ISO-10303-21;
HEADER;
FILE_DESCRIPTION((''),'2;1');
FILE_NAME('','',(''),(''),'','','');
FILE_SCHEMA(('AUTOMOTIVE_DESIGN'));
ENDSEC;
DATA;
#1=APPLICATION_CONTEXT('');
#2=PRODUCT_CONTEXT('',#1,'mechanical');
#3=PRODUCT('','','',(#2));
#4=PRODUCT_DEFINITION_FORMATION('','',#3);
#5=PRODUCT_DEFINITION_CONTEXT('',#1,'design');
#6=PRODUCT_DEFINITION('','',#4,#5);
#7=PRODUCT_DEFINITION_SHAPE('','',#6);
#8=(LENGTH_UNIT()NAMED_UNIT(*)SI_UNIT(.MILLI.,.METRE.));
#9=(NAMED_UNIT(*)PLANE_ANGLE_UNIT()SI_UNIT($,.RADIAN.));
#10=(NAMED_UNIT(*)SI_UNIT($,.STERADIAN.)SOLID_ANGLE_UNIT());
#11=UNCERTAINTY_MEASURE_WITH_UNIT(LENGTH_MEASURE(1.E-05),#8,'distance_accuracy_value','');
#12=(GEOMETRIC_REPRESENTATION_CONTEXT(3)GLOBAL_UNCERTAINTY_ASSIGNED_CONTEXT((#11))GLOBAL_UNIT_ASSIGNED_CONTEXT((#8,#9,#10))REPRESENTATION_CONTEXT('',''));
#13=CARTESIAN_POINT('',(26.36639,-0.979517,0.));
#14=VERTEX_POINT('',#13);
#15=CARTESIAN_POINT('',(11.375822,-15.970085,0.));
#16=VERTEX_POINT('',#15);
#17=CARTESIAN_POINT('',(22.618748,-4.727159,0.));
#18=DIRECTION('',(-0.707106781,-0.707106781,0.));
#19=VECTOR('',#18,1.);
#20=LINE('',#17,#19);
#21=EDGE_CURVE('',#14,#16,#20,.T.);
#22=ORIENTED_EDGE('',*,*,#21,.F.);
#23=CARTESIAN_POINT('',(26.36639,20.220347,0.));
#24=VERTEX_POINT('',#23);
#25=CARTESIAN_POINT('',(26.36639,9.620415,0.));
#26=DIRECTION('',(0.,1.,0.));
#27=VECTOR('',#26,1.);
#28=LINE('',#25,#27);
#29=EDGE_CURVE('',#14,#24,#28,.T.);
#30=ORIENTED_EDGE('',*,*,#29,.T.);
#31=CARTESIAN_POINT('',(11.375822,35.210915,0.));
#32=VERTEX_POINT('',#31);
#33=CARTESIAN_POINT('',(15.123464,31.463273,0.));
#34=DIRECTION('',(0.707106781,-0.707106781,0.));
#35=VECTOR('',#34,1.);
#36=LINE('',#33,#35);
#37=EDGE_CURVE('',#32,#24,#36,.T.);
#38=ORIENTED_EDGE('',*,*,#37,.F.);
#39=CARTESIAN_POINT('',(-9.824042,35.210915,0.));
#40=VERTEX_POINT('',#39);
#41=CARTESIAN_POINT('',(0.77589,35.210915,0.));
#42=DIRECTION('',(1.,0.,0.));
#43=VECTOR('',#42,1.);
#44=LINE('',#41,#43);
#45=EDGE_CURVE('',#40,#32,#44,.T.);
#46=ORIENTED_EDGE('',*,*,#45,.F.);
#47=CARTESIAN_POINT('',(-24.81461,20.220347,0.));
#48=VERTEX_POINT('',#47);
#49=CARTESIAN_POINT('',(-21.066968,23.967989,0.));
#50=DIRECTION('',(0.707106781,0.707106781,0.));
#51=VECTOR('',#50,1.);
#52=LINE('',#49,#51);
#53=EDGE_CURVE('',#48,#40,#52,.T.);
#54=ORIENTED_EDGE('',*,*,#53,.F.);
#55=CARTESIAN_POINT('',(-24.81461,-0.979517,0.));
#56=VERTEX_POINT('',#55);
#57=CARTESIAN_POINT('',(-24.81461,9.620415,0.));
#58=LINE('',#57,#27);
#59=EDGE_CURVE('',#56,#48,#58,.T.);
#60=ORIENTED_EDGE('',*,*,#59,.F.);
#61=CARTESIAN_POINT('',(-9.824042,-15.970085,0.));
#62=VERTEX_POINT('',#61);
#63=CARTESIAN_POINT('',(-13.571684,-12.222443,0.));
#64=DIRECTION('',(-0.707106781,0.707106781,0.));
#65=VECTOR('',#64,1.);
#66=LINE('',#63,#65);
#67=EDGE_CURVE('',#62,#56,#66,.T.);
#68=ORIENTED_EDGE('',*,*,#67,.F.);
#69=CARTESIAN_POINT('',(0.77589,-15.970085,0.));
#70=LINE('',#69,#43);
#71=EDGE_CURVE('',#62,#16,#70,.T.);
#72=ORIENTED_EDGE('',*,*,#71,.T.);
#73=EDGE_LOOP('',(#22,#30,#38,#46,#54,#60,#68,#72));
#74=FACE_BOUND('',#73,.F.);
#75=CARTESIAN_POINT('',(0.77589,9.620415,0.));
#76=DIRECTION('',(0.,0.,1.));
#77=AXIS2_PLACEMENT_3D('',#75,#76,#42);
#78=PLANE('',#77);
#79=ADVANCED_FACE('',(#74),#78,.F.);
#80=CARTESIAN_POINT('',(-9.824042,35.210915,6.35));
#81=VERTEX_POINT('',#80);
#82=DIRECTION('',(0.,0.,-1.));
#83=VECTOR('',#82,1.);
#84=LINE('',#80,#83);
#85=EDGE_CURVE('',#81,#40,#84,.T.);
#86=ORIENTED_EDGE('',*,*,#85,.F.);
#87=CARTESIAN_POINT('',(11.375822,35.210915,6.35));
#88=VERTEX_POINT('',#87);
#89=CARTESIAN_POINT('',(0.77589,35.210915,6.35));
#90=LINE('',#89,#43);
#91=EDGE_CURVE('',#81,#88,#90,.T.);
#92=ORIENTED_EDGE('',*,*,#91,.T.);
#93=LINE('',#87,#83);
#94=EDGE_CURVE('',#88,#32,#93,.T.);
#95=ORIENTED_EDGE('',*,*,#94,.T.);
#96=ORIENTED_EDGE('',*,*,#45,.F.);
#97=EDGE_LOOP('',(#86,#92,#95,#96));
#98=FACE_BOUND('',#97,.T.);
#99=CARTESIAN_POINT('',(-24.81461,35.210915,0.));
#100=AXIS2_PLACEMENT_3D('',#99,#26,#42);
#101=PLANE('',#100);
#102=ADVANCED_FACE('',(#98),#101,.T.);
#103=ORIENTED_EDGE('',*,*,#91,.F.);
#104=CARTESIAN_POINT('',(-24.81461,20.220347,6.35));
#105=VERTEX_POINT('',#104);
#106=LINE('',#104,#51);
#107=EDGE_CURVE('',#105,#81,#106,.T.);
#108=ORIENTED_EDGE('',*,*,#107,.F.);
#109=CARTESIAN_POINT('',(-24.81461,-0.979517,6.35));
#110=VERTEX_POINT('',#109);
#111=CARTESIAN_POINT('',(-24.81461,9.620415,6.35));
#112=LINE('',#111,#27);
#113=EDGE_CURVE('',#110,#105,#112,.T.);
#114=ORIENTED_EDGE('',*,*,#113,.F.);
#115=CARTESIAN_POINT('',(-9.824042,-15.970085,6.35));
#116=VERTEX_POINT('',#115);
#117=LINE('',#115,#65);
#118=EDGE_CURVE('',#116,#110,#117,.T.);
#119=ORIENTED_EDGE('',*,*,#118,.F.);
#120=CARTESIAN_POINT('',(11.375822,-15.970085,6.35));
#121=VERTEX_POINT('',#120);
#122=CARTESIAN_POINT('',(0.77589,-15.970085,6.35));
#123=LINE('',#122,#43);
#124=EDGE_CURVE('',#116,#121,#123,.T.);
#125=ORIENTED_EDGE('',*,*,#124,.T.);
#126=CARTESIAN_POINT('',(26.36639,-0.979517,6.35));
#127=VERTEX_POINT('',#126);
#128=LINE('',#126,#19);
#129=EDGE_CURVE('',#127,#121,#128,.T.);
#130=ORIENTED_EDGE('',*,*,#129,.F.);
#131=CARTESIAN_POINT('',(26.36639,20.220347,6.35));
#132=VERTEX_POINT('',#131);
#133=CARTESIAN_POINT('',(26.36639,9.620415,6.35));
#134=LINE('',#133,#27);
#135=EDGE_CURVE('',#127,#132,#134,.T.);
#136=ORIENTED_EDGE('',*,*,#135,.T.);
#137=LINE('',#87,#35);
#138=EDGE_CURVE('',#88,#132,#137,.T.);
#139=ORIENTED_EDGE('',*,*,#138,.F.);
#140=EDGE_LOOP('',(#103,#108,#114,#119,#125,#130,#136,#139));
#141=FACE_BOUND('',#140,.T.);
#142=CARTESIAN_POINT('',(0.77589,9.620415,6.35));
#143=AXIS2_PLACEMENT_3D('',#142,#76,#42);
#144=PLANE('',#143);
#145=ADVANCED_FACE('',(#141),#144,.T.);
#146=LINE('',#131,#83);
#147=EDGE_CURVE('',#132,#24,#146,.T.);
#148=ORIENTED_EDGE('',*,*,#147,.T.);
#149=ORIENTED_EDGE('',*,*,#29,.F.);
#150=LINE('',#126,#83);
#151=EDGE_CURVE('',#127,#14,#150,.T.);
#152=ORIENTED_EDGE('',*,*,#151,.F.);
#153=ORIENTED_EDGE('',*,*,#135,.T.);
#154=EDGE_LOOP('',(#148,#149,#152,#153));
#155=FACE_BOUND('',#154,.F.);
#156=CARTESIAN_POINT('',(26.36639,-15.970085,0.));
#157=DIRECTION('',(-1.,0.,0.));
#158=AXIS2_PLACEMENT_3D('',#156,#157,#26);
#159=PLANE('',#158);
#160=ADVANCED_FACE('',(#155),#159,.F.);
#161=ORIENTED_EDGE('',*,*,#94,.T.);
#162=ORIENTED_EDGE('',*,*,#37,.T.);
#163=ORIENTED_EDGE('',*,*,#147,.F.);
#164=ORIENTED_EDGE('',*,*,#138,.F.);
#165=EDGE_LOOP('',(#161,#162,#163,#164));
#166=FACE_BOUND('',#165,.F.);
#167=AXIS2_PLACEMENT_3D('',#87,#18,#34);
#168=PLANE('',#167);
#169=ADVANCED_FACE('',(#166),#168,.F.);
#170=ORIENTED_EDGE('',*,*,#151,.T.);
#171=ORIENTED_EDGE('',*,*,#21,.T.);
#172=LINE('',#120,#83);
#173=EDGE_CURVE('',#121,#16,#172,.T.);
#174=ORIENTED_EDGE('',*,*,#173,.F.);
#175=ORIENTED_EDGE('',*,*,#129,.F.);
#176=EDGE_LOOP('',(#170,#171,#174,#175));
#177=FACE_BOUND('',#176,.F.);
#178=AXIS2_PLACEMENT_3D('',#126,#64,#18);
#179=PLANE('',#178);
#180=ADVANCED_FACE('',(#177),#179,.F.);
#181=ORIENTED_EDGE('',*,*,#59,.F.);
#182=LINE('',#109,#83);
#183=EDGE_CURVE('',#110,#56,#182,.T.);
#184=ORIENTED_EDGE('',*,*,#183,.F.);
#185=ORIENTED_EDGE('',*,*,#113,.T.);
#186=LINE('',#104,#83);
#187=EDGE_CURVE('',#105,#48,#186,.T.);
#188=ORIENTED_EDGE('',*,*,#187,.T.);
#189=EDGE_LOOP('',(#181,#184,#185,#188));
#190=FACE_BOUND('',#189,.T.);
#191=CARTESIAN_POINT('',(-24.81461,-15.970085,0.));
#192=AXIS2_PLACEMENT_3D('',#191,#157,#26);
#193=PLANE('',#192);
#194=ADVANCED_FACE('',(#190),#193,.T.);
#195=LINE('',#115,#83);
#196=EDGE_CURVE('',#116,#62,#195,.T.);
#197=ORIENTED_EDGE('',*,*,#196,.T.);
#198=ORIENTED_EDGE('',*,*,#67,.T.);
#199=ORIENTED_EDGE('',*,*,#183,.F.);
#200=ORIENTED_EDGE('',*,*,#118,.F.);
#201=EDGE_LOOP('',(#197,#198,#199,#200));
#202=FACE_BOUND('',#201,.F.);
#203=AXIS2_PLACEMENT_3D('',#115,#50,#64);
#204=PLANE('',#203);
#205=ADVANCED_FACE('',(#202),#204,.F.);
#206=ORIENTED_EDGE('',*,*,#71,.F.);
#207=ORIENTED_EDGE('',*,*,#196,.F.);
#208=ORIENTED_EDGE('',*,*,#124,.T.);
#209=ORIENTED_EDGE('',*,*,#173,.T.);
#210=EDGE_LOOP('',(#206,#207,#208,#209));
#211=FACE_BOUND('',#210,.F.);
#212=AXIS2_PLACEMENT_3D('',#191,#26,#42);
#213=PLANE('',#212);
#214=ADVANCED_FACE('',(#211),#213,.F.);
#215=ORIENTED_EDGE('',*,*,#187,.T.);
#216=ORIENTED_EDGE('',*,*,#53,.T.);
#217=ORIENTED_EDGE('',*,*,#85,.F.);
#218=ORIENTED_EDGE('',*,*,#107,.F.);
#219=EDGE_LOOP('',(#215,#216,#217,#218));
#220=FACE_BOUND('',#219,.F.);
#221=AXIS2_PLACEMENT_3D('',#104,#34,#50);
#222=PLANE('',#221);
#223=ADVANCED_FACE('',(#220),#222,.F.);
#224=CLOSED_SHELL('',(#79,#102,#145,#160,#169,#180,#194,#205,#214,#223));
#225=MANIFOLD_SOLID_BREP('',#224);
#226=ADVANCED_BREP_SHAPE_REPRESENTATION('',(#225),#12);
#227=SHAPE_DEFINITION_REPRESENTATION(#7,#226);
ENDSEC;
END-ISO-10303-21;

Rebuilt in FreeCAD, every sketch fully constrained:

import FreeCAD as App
import Part
import Sketcher
Q = App.Units.Quantity

doc = App.newDocument("Part")
params = doc.addObject("Spreadsheet::Sheet", "Params")
for row, (alias, value) in enumerate([
    ("sketch1_width", "2.015 in"),
    ("pad1_length", "0.25 in"),
    ("pocket1_length", "1 in"),
], start=1):
    params.set(f"A{row}", alias)
    params.set(f"B{row}", "=" + value)
    params.setAlias(f"B{row}", alias)

body = doc.addObject("PartDesign::Body", "Body")

# Sketch on XY plane
sketch1 = doc.addObject("Sketcher::SketchObject", "Sketch")
body.addObject(sketch1)
sketch1.AttachmentSupport = (doc.XY_Plane, [""])
sketch1.MapMode = "FlatFace"
sketch1.addGeometry(Part.LineSegment(App.Vector(-25, 35, 0), App.Vector(-25, -16, 0)), False)
sketch1.addGeometry(Part.LineSegment(App.Vector(-25, -16, 0), App.Vector(26, -16, 0)), False)
sketch1.addGeometry(Part.LineSegment(App.Vector(26, -16, 0), App.Vector(26, 35, 0)), False)
sketch1.addGeometry(Part.LineSegment(App.Vector(26, 35, 0), App.Vector(-25, 35, 0)), False)
sketch1.addConstraint(Sketcher.Constraint("Coincident", 0, 2, 1, 1))
sketch1.addConstraint(Sketcher.Constraint("Coincident", 1, 2, 2, 1))
sketch1.addConstraint(Sketcher.Constraint("Coincident", 2, 2, 3, 1))
sketch1.addConstraint(Sketcher.Constraint("Coincident", 3, 2, 0, 1))
sketch1.addConstraint(Sketcher.Constraint("Vertical", 0))
sketch1.addConstraint(Sketcher.Constraint("Horizontal", 1))
sketch1.addConstraint(Sketcher.Constraint("Vertical", 2))
sketch1.addConstraint(Sketcher.Constraint("Horizontal", 3))
sketch1.addConstraint(Sketcher.Constraint("Equal", 3, 0))
sketch1.addConstraint(Sketcher.Constraint("DistanceX", 1, 1, 1, 2, Q("2.015 in")))
sketch1.addConstraint(Sketcher.Constraint("DistanceX", 0, 2, -1, 1, Q("24.81461 mm")))
sketch1.addConstraint(Sketcher.Constraint("DistanceY", 0, 2, -1, 1, Q("15.970085 mm")))
sketch1.setExpression("Constraints[9]", "Params.sketch1_width")
pad1 = doc.addObject("PartDesign::Pad", "Pad")
body.addObject(pad1)
pad1.Profile = sketch1
pad1.setExpression("Length", "Params.pad1_length")

# Sketch on XY plane
sketch2 = doc.addObject("Sketcher::SketchObject", "Sketch001")
body.addObject(sketch2)
sketch2.AttachmentSupport = (doc.XY_Plane, [""])
sketch2.MapMode = "FlatFace"
sketch2.AttachmentOffset = App.Placement(App.Vector(0, 0, 0.25 * 25.4), App.Rotation())
sketch2.addGeometry(Part.LineSegment(App.Vector(-25, 35, 0), App.Vector(-25, 20, 0)), False)
sketch2.addGeometry(Part.LineSegment(App.Vector(-25, 20, 0), App.Vector(-10, 35, 0)), False)
sketch2.addGeometry(Part.LineSegment(App.Vector(-10, 35, 0), App.Vector(-25, 35, 0)), False)
sketch2.addGeometry(Part.LineSegment(App.Vector(26, 35, 0), App.Vector(11, 35, 0)), False)
sketch2.addGeometry(Part.LineSegment(App.Vector(11, 35, 0), App.Vector(26, 20, 0)), False)
sketch2.addGeometry(Part.LineSegment(App.Vector(26, 20, 0), App.Vector(26, 35, 0)), False)
sketch2.addGeometry(Part.LineSegment(App.Vector(-10, -16, 0), App.Vector(-25, -1, 0)), False)
sketch2.addGeometry(Part.LineSegment(App.Vector(-25, -1, 0), App.Vector(-25, -16, 0)), False)
sketch2.addGeometry(Part.LineSegment(App.Vector(-25, -16, 0), App.Vector(-10, -16, 0)), False)
sketch2.addGeometry(Part.LineSegment(App.Vector(26, -1, 0), App.Vector(11, -16, 0)), False)
sketch2.addGeometry(Part.LineSegment(App.Vector(11, -16, 0), App.Vector(26, -16, 0)), False)
sketch2.addGeometry(Part.LineSegment(App.Vector(26, -16, 0), App.Vector(26, -1, 0)), False)
sketch2.addConstraint(Sketcher.Constraint("Coincident", 0, 2, 1, 1))
sketch2.addConstraint(Sketcher.Constraint("Coincident", 1, 2, 2, 1))
sketch2.addConstraint(Sketcher.Constraint("Coincident", 2, 2, 0, 1))
sketch2.addConstraint(Sketcher.Constraint("Coincident", 3, 2, 4, 1))
sketch2.addConstraint(Sketcher.Constraint("Coincident", 4, 2, 5, 1))
sketch2.addConstraint(Sketcher.Constraint("Coincident", 5, 2, 3, 1))
sketch2.addConstraint(Sketcher.Constraint("Coincident", 6, 2, 7, 1))
sketch2.addConstraint(Sketcher.Constraint("Coincident", 7, 2, 8, 1))
sketch2.addConstraint(Sketcher.Constraint("Coincident", 8, 2, 6, 1))
sketch2.addConstraint(Sketcher.Constraint("Coincident", 9, 2, 10, 1))
sketch2.addConstraint(Sketcher.Constraint("Coincident", 10, 2, 11, 1))
sketch2.addConstraint(Sketcher.Constraint("Coincident", 11, 2, 9, 1))
sketch2.addConstraint(Sketcher.Constraint("Vertical", 0))
sketch2.addConstraint(Sketcher.Constraint("Horizontal", 2))
sketch2.addConstraint(Sketcher.Constraint("Horizontal", 3))
sketch2.addConstraint(Sketcher.Constraint("Vertical", 5))
sketch2.addConstraint(Sketcher.Constraint("Vertical", 7))
sketch2.addConstraint(Sketcher.Constraint("Horizontal", 8))
sketch2.addConstraint(Sketcher.Constraint("Horizontal", 10))
sketch2.addConstraint(Sketcher.Constraint("Vertical", 11))
sketch2.addConstraint(Sketcher.Constraint("Perpendicular", 1, 4))
sketch2.addConstraint(Sketcher.Constraint("Parallel", 4, 6))
sketch2.addConstraint(Sketcher.Constraint("Perpendicular", 6, 9))
sketch2.addConstraint(Sketcher.Constraint("Horizontal", 2, 2, 3, 2))
sketch2.addConstraint(Sketcher.Constraint("Horizontal", 0, 2, 4, 2))
sketch2.addConstraint(Sketcher.Constraint("Horizontal", 8, 2, 9, 2))
sketch2.addConstraint(Sketcher.Constraint("Horizontal", 6, 2, 11, 2))
sketch2.addConstraint(Sketcher.Constraint("Vertical", 2, 2, 6, 2))
sketch2.addConstraint(Sketcher.Constraint("Vertical", 1, 2, 8, 2))
sketch2.addConstraint(Sketcher.Constraint("Vertical", 3, 2, 9, 2))
sketch2.addConstraint(Sketcher.Constraint("Vertical", 5, 2, 10, 2))
sketch2.addConstraint(Sketcher.Constraint("DistanceX", 0, 2, 4, 2, Q("2.015 in")))
sketch2.addConstraint(Sketcher.Constraint("DistanceY", 7, 2, 2, 2, Q("2.015 in")))
sketch2.addConstraint(Sketcher.Constraint("DistanceX", 2, 2, 2, 1, Q("14.990568 mm")))
sketch2.addConstraint(Sketcher.Constraint("DistanceX", 0, 2, -1, 1, Q("24.81461 mm")))
sketch2.addConstraint(Sketcher.Constraint("DistanceY", -1, 1, 0, 2, Q("20.220347 mm")))
pocket1 = doc.addObject("PartDesign::Pocket", "Pocket")
body.addObject(pocket1)
pocket1.Profile = sketch2
pocket1.setExpression("Length", "Params.pocket1_length")

doc.recompute()
